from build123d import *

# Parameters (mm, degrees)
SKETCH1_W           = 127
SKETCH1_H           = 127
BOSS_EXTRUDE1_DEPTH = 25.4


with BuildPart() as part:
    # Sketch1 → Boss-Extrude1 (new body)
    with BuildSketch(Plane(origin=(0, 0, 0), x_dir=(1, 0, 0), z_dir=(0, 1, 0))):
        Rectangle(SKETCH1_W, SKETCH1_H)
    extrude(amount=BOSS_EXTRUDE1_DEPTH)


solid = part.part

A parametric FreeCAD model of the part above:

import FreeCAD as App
import Part
import Sketcher
from FreeCAD import Vector
Q = App.Units.Quantity


def add_polygon(sketch, points):
    """Adds a closed chain of lines whose ends are joined by coincident constraints."""
    first, n = sketch.GeometryCount, len(points)
    for a, b in zip(points, points[1:] + points[:1]):
        sketch.addGeometry(Part.LineSegment(App.Vector(*a, 0), App.Vector(*b, 0)), False)
    for i in range(n):
        sketch.addConstraint(Sketcher.Constraint("Coincident", first + i, 2, first + (i + 1) % n, 1))

doc = App.newDocument("Part")
body = doc.addObject("PartDesign::Body", "Body")

sketch1 = body.newObject("Sketcher::SketchObject", "Sketch")
sketch1.AttachmentSupport = (doc.getObject("XZ_Plane"), [""])
sketch1.MapMode = "FlatFace"
add_polygon(sketch1, [(-64, -64), (-64, 64), (64, 64), (64, -64)])
sketch1.addConstraint([
    Sketcher.Constraint("Vertical", 0),
    Sketcher.Constraint("Horizontal", 1),
    Sketcher.Constraint("Vertical", 2),
    Sketcher.Constraint("Horizontal", 3),
    Sketcher.Constraint("Symmetric", 0, 2, 2, 2, -1, 1),
    Sketcher.Constraint("Equal", 3, 0),
    Sketcher.Constraint("DistanceX", 1, 1, 1, 2, Q("5 in")),
])
pad1 = body.newObject("PartDesign::Pad", "Pad")
pad1.Profile = sketch1
pad1.Length = Q("1 in")
pad1.Reversed = True

doc.recompute()
